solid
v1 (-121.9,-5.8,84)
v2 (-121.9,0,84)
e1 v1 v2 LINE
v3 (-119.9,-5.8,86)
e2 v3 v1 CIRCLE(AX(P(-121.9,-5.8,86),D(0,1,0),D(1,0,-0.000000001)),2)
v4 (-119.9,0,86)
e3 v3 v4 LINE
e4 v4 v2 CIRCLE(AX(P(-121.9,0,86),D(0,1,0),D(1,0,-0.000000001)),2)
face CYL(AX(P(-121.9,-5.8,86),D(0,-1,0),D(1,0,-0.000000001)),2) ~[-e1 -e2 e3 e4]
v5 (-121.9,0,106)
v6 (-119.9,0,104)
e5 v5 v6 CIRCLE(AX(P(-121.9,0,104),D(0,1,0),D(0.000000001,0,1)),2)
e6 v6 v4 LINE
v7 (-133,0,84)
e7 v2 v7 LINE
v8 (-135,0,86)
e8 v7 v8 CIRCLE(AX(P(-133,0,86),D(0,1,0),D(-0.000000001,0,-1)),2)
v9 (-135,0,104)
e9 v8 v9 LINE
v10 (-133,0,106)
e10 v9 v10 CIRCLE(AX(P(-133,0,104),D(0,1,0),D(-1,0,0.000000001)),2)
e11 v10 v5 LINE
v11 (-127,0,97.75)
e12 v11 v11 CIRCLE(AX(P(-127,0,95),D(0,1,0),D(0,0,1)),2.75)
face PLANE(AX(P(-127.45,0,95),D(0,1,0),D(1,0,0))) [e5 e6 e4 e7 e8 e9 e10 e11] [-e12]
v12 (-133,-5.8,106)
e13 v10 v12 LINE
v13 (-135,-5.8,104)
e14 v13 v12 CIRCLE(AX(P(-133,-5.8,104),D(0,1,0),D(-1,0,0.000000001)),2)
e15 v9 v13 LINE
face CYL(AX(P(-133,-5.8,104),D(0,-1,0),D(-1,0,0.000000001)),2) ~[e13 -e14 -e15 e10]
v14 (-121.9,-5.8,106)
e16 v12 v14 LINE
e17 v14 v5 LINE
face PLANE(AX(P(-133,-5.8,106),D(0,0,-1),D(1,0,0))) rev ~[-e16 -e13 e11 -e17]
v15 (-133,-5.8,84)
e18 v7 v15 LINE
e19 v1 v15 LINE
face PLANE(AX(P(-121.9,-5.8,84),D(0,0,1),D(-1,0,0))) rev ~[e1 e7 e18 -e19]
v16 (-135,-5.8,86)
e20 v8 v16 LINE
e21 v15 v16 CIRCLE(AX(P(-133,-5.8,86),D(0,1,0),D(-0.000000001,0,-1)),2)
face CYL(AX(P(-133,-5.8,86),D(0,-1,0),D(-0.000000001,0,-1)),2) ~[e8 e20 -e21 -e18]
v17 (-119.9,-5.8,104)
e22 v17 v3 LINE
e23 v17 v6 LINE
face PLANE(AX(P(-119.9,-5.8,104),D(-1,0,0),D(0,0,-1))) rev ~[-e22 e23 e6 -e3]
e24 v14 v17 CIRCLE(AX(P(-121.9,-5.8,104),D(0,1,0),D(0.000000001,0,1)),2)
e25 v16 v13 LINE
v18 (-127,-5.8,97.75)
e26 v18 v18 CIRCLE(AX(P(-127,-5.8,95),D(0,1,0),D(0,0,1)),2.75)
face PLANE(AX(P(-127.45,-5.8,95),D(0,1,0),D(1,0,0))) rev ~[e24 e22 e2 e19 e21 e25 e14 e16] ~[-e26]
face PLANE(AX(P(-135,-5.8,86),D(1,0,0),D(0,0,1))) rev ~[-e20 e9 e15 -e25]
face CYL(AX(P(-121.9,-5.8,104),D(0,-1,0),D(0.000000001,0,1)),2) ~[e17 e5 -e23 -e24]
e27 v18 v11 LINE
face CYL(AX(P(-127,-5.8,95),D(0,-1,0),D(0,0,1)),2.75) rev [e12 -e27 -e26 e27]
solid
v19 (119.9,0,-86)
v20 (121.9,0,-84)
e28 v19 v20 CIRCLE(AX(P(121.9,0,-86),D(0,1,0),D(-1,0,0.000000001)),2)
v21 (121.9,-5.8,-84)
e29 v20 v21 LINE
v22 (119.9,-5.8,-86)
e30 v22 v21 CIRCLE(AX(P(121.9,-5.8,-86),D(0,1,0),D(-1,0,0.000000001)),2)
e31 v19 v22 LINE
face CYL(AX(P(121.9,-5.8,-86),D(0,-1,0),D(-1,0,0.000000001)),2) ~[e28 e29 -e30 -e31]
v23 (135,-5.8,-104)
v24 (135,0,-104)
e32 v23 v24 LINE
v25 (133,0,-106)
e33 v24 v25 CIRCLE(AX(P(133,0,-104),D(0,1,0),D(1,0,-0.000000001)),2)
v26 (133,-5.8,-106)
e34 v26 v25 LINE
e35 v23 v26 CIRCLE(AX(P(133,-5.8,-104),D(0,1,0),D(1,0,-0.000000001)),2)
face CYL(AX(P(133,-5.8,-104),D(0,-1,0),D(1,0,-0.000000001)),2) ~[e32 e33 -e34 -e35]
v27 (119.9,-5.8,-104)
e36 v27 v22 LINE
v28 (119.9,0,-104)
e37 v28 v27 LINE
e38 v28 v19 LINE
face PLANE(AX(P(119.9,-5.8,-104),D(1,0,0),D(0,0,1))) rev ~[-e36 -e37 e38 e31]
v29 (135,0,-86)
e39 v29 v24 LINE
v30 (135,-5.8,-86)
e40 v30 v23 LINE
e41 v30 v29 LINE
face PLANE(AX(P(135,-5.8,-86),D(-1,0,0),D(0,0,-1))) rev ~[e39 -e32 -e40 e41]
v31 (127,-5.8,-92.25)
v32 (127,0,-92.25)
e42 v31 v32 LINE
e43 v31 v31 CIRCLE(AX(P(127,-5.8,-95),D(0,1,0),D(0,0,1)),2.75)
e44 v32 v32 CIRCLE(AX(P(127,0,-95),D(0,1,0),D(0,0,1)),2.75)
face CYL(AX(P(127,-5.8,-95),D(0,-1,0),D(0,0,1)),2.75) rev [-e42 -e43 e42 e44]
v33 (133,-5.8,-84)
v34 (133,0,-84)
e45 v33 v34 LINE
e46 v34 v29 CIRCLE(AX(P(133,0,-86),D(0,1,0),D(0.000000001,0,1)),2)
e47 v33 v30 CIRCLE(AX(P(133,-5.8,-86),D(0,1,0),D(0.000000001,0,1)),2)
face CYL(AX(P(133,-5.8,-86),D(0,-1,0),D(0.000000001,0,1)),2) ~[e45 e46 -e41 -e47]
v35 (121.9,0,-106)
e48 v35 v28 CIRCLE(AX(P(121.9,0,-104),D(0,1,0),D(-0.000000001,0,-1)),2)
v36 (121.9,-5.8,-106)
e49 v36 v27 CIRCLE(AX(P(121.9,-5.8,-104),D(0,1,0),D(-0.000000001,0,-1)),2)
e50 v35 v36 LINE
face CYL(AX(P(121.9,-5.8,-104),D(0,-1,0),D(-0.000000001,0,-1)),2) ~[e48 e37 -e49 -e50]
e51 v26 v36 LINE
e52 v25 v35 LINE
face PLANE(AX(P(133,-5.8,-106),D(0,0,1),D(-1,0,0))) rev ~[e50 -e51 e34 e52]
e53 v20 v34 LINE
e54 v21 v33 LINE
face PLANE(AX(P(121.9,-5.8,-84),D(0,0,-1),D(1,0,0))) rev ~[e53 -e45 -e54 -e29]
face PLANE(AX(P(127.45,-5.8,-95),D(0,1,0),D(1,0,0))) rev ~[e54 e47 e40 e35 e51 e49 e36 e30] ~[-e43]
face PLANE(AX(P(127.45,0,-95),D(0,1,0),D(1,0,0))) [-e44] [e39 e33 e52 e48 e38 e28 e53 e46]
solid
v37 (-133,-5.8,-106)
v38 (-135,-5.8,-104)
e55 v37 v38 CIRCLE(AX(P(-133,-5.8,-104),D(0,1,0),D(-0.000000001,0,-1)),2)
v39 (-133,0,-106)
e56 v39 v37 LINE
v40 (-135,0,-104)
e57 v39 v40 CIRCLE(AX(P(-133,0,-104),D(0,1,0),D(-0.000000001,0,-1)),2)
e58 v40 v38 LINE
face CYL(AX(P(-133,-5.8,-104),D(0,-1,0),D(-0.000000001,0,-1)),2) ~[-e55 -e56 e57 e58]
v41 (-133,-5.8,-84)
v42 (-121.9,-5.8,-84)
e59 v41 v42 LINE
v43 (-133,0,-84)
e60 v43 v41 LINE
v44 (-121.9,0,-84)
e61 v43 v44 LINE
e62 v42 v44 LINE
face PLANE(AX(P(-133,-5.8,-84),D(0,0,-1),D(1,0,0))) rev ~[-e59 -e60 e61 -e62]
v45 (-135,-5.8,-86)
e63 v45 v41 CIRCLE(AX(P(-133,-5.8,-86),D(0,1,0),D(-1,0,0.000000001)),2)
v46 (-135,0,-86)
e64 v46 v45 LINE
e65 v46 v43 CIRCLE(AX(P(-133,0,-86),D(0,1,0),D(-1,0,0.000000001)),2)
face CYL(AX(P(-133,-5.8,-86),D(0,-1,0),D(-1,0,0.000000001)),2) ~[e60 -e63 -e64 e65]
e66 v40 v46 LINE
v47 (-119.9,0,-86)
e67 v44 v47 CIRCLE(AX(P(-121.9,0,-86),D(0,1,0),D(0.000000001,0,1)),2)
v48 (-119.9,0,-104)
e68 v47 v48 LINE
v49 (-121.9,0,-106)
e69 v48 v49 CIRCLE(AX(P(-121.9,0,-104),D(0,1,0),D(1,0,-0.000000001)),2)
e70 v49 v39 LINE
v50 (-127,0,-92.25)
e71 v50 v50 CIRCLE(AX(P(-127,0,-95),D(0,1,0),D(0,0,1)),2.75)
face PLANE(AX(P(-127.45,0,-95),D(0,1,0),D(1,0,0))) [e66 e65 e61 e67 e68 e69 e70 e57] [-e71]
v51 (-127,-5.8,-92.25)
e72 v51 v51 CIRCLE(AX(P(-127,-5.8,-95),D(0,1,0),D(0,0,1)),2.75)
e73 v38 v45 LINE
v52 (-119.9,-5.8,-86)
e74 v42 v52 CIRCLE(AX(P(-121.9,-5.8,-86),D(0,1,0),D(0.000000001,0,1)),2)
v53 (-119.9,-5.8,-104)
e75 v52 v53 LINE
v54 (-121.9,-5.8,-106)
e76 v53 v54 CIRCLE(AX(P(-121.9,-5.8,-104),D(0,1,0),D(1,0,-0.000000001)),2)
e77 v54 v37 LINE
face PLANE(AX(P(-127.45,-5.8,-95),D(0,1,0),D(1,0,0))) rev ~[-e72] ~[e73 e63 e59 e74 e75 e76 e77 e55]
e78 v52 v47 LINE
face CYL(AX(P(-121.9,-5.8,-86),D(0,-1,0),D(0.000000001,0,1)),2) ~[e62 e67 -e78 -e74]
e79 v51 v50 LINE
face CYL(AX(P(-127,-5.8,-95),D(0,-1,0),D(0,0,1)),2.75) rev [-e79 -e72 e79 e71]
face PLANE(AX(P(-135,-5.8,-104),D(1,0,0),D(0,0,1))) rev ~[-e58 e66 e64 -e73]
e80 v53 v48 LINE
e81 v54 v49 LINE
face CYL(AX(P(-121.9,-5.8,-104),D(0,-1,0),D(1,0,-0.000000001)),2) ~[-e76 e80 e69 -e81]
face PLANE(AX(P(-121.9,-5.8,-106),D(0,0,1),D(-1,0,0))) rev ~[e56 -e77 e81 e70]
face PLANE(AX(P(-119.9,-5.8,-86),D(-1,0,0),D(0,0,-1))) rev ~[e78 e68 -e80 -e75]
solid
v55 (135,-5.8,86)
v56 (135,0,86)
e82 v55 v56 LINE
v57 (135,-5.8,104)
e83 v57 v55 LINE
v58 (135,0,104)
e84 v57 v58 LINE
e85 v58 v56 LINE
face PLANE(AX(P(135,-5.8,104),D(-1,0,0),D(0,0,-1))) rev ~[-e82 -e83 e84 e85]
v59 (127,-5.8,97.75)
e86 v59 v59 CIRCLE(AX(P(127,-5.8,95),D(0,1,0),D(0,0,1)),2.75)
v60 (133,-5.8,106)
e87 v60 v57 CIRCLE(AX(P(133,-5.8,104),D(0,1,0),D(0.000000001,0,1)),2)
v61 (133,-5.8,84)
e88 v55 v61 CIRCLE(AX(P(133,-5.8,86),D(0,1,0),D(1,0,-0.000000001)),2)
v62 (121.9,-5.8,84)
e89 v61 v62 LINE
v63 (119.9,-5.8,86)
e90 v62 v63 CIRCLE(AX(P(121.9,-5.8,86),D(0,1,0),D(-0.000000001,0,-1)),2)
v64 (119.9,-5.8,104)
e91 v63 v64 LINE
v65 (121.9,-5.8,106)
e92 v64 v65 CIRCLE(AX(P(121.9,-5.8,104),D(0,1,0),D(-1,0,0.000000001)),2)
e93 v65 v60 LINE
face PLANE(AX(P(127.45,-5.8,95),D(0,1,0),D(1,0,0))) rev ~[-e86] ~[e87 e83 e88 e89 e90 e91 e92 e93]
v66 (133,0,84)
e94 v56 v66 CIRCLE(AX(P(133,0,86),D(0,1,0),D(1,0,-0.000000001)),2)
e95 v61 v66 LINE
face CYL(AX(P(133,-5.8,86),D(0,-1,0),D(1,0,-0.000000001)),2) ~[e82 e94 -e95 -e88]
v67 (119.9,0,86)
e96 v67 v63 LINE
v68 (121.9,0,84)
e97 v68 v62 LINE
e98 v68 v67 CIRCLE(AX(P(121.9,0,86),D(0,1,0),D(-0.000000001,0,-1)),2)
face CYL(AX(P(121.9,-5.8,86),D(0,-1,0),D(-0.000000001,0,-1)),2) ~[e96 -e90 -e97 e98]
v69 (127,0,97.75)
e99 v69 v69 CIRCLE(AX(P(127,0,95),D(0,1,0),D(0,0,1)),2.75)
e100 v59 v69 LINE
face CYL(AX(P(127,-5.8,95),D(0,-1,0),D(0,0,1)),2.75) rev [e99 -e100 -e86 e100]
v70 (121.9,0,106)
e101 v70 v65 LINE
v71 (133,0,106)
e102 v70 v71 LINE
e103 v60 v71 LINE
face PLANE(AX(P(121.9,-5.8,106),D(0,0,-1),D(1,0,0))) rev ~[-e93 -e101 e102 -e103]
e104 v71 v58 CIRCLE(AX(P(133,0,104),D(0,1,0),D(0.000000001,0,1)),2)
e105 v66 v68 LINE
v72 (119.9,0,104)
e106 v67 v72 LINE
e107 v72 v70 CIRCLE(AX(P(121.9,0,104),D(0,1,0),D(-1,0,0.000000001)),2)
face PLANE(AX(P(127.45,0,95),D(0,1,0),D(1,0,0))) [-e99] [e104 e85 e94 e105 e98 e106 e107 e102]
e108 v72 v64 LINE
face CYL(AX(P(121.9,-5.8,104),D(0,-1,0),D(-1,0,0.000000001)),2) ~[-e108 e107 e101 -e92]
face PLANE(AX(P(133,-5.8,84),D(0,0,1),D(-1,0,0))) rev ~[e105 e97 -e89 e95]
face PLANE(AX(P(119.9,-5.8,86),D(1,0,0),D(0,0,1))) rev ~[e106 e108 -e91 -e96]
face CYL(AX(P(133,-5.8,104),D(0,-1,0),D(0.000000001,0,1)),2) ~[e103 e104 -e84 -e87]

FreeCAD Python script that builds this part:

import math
import FreeCAD as App
import Part
import Sketcher

doc = App.newDocument("Part")
params = doc.addObject("Spreadsheet::Sheet", "Params")
for row, (alias, value) in enumerate([
    ("sketch1_radius", "2 mm"),
    ("sketch1_diameter", "5.5 mm"),
    ("sketch1_height", "18 mm"),
    ("sketch1_width", "11.1 mm"),
    ("pad1_length", "2.9 mm"),
    ("sketch2_radius", "2 mm"),
    ("sketch2_diameter", "5.5 mm"),
    ("sketch2_height", "18 mm"),
    ("sketch2_width", "11.1 mm"),
    ("pad2_length", "2.9 mm"),
    ("sketch3_radius", "2 mm"),
    ("sketch3_diameter", "5.5 mm"),
    ("sketch3_height", "18 mm"),
    ("sketch3_width", "11.1 mm"),
    ("pad3_length", "2.9 mm"),
    ("sketch4_radius", "2 mm"),
    ("sketch4_diameter", "5.5 mm"),
    ("sketch4_height", "18 mm"),
    ("sketch4_width", "11.1 mm"),
    ("pad4_length", "2.9 mm"),
    ("sketch5_radius", "2 mm"),
    ("sketch5_diameter", "5.5 mm"),
    ("sketch5_height", "18 mm"),
    ("sketch5_width", "11.1 mm"),
    ("pad5_length", "2.9 mm"),
], start=1):
    params.set(f"A{row}", alias)
    params.set(f"B{row}", "=" + value)
    params.setAlias(f"B{row}", alias)

body = doc.addObject("PartDesign::Body", "Body")

sketch1 = doc.addObject("Sketcher::SketchObject", "Sketch")
body.addObject(sketch1)
sketch1.AttachmentSupport = (doc.XZ_Plane, [""])
sketch1.MapMode = "FlatFace"
sketch1.AttachmentOffset = App.Placement(App.Vector(0, 0, 2.9), App.Rotation())
sketch1.addGeometry([
    Part.LineSegment(App.Vector(121.9, 106, 0), App.Vector(133, 106, 0)),
    Part.ArcOfCircle(Part.Circle(App.Vector(133, 104, 0), App.Vector(0, 0, 1), 2), math.radians(0), math.radians(90)),
    Part.LineSegment(App.Vector(135, 104, 0), App.Vector(135, 86, 0)),
    Part.ArcOfCircle(Part.Circle(App.Vector(133, 86, 0), App.Vector(0, 0, 1), 2), math.radians(-90), math.radians(0)),
    Part.LineSegment(App.Vector(133, 84, 0), App.Vector(121.9, 84, 0)),
    Part.ArcOfCircle(Part.Circle(App.Vector(121.9, 86, 0), App.Vector(0, 0, 1), 2), math.radians(-180), math.radians(-90)),
    Part.LineSegment(App.Vector(119.9, 86, 0), App.Vector(119.9, 104, 0)),
    Part.ArcOfCircle(Part.Circle(App.Vector(121.9, 104, 0), App.Vector(0, 0, 1), 2), math.radians(90), math.radians(180)),
    Part.Circle(App.Vector(127, 95, 0), App.Vector(0, 0, 1), 2.8),
], False)
sketch1.addConstraint([
    Sketcher.Constraint("Tangent", 0, 2, 1, 2),
    Sketcher.Constraint("Tangent", 1, 1, 2, 1),
    Sketcher.Constraint("Tangent", 2, 2, 3, 2),
    Sketcher.Constraint("Tangent", 3, 1, 4, 1),
    Sketcher.Constraint("Tangent", 4, 2, 5, 2),
    Sketcher.Constraint("Tangent", 5, 1, 6, 1),
    Sketcher.Constraint("Tangent", 6, 2, 7, 2),
    Sketcher.Constraint("Tangent", 7, 1, 0, 1),
    Sketcher.Constraint("Horizontal", 0),
    Sketcher.Constraint("Vertical", 2),
    Sketcher.Constraint("Horizontal", 4),
    Sketcher.Constraint("Vertical", 6),
    Sketcher.Constraint("Equal", 1, 3),
    Sketcher.Constraint("Equal", 3, 5),
    Sketcher.Constraint("Equal", 5, 7),
    Sketcher.Constraint("Radius", 1, 2.0),
    Sketcher.Constraint("Diameter", 8, 5.5),
    Sketcher.Constraint("DistanceY", 2, 2, 2, 1, 18.0),
    Sketcher.Constraint("DistanceX", 0, 1, 0, 2, 11.1),
    Sketcher.Constraint("DistanceX", -1, 1, 1, 3, 133.0),
    Sketcher.Constraint("DistanceY", -1, 1, 1, 3, 104.0),
    Sketcher.Constraint("DistanceX", -1, 1, 8, 3, 127.0),
    Sketcher.Constraint("DistanceY", -1, 1, 8, 3, 95.0),
])
sketch1.setExpression("Constraints[15]", "Params.sketch1_radius")
sketch1.setExpression("Constraints[16]", "Params.sketch1_diameter")
sketch1.setExpression("Constraints[17]", "Params.sketch1_height")
sketch1.setExpression("Constraints[18]", "Params.sketch1_width")
pad1 = doc.addObject("PartDesign::Pad", "Pad")
body.addObject(pad1)
pad1.Profile = sketch1
pad1.setExpression("Length", "Params.pad1_length")
pad1.Reversed = True
body2 = doc.addObject("PartDesign::Body", "Body001")

sketch2 = doc.addObject("Sketcher::SketchObject", "Sketch001")
body2.addObject(sketch2)
sketch2.AttachmentSupport = (doc.getObject("XZ_Plane001"), [""])
sketch2.MapMode = "FlatFace"
sketch2.AttachmentOffset = App.Placement(App.Vector(0, 0, 2.9), App.Rotation())
sketch2.addGeometry([
    Part.LineSegment(App.Vector(121.9, -84, 0), App.Vector(133, -84, 0)),
    Part.ArcOfCircle(Part.Circle(App.Vector(133, -86, 0), App.Vector(0, 0, 1), 2), math.radians(0), math.radians(90)),
    Part.LineSegment(App.Vector(135, -86, 0), App.Vector(135, -104, 0)),
    Part.ArcOfCircle(Part.Circle(App.Vector(133, -104, 0), App.Vector(0, 0, 1), 2), math.radians(-90), math.radians(0)),
    Part.LineSegment(App.Vector(133, -106, 0), App.Vector(121.9, -106, 0)),
    Part.ArcOfCircle(Part.Circle(App.Vector(121.9, -104, 0), App.Vector(0, 0, 1), 2), math.radians(-180), math.radians(-90)),
    Part.LineSegment(App.Vector(119.9, -104, 0), App.Vector(119.9, -86, 0)),
    Part.ArcOfCircle(Part.Circle(App.Vector(121.9, -86, 0), App.Vector(0, 0, 1), 2), math.radians(90), math.radians(180)),
    Part.Circle(App.Vector(127, -95, 0), App.Vector(0, 0, 1), 2.8),
], False)
sketch2.addConstraint([
    Sketcher.Constraint("Tangent", 0, 2, 1, 2),
    Sketcher.Constraint("Tangent", 1, 1, 2, 1),
    Sketcher.Constraint("Tangent", 2, 2, 3, 2),
    Sketcher.Constraint("Tangent", 3, 1, 4, 1),
    Sketcher.Constraint("Tangent", 4, 2, 5, 2),
    Sketcher.Constraint("Tangent", 5, 1, 6, 1),
    Sketcher.Constraint("Tangent", 6, 2, 7, 2),
    Sketcher.Constraint("Tangent", 7, 1, 0, 1),
    Sketcher.Constraint("Horizontal", 0),
    Sketcher.Constraint("Vertical", 2),
    Sketcher.Constraint("Horizontal", 4),
    Sketcher.Constraint("Vertical", 6),
    Sketcher.Constraint("Equal", 1, 3),
    Sketcher.Constraint("Equal", 3, 5),
    Sketcher.Constraint("Equal", 5, 7),
    Sketcher.Constraint("Radius", 1, 2.0),
    Sketcher.Constraint("Diameter", 8, 5.5),
    Sketcher.Constraint("DistanceY", 2, 2, 2, 1, 18.0),
    Sketcher.Constraint("DistanceX", 0, 1, 0, 2, 11.1),
    Sketcher.Constraint("DistanceX", -1, 1, 1, 3, 133.0),
    Sketcher.Constraint("DistanceY", 1, 3, -1, 1, 86.0),
    Sketcher.Constraint("DistanceX", -1, 1, 8, 3, 127.0),
    Sketcher.Constraint("DistanceY", 8, 3, -1, 1, 95.0),
])
sketch2.setExpression("Constraints[15]", "Params.sketch2_radius")
sketch2.setExpression("Constraints[16]", "Params.sketch2_diameter")
sketch2.setExpression("Constraints[17]", "Params.sketch2_height")
sketch2.setExpression("Constraints[18]", "Params.sketch2_width")
pad2 = doc.addObject("PartDesign::Pad", "Pad001")
body2.addObject(pad2)
pad2.Profile = sketch2
pad2.setExpression("Length", "Params.pad2_length")
pad2.Reversed = True
body3 = doc.addObject("PartDesign::Body", "Body002")

sketch3 = doc.addObject("Sketcher::SketchObject", "Sketch002")
body3.addObject(sketch3)
sketch3.AttachmentSupport = (doc.getObject("XZ_Plane002"), [""])
sketch3.MapMode = "FlatFace"
sketch3.AttachmentOffset = App.Placement(App.Vector(0, 0, 2.9), App.Rotation())
sketch3.addGeometry([
    Part.LineSegment(App.Vector(-133, 106, 0), App.Vector(-121.9, 106, 0)),
    Part.ArcOfCircle(Part.Circle(App.Vector(-121.9, 104, 0), App.Vector(0, 0, 1), 2), math.radians(0), math.radians(90)),
    Part.LineSegment(App.Vector(-119.9, 104, 0), App.Vector(-119.9, 86, 0)),
    Part.ArcOfCircle(Part.Circle(App.Vector(-121.9, 86, 0), App.Vector(0, 0, 1), 2), math.radians(-90), math.radians(0)),
    Part.LineSegment(App.Vector(-121.9, 84, 0), App.Vector(-133, 84, 0)),
    Part.ArcOfCircle(Part.Circle(App.Vector(-133, 86, 0), App.Vector(0, 0, 1), 2), math.radians(-180), math.radians(-90)),
    Part.LineSegment(App.Vector(-135, 86, 0), App.Vector(-135, 104, 0)),
    Part.ArcOfCircle(Part.Circle(App.Vector(-133, 104, 0), App.Vector(0, 0, 1), 2), math.radians(90), math.radians(180)),
    Part.Circle(App.Vector(-127, 95, 0), App.Vector(0, 0, 1), 2.8),
], False)
sketch3.addConstraint([
    Sketcher.Constraint("Tangent", 0, 2, 1, 2),
    Sketcher.Constraint("Tangent", 1, 1, 2, 1),
    Sketcher.Constraint("Tangent", 2, 2, 3, 2),
    Sketcher.Constraint("Tangent", 3, 1, 4, 1),
    Sketcher.Constraint("Tangent", 4, 2, 5, 2),
    Sketcher.Constraint("Tangent", 5, 1, 6, 1),
    Sketcher.Constraint("Tangent", 6, 2, 7, 2),
    Sketcher.Constraint("Tangent", 7, 1, 0, 1),
    Sketcher.Constraint("Horizontal", 0),
    Sketcher.Constraint("Vertical", 2),
    Sketcher.Constraint("Horizontal", 4),
    Sketcher.Constraint("Vertical", 6),
    Sketcher.Constraint("Equal", 1, 3),
    Sketcher.Constraint("Equal", 3, 5),
    Sketcher.Constraint("Equal", 5, 7),
    Sketcher.Constraint("Radius", 1, 2.0),
    Sketcher.Constraint("Diameter", 8, 5.5),
    Sketcher.Constraint("DistanceY", 2, 2, 2, 1, 18.0),
    Sketcher.Constraint("DistanceX", 0, 1, 0, 2, 11.1),
    Sketcher.Constraint("DistanceY", -1, 1, 1, 3, 104.0),
    Sketcher.Constraint("DistanceX", 5, 3, -1, 1, 133.0),
    Sketcher.Constraint("DistanceX", 8, 3, -1, 1, 127.0),
    Sketcher.Constraint("DistanceY", -1, 1, 8, 3, 95.0),
])
sketch3.setExpression("Constraints[15]", "Params.sketch3_radius")
sketch3.setExpression("Constraints[16]", "Params.sketch3_diameter")
sketch3.setExpression("Constraints[17]", "Params.sketch3_height")
sketch3.setExpression("Constraints[18]", "Params.sketch3_width")
pad3 = doc.addObject("PartDesign::Pad", "Pad002")
body3.addObject(pad3)
pad3.Profile = sketch3
pad3.setExpression("Length", "Params.pad3_length")
pad3.Reversed = True
body4 = doc.addObject("PartDesign::Body", "Body003")

sketch4 = doc.addObject("Sketcher::SketchObject", "Sketch003")
body4.addObject(sketch4)
sketch4.AttachmentSupport = (doc.getObject("XZ_Plane003"), [""])
sketch4.MapMode = "FlatFace"
sketch4.AttachmentOffset = App.Placement(App.Vector(0, 0, 2.9), App.Rotation())
sketch4.addGeometry([
    Part.LineSegment(App.Vector(-133, -84, 0), App.Vector(-121.9, -84, 0)),
    Part.ArcOfCircle(Part.Circle(App.Vector(-121.9, -86, 0), App.Vector(0, 0, 1), 2), math.radians(0), math.radians(90)),
    Part.LineSegment(App.Vector(-119.9, -86, 0), App.Vector(-119.9, -104, 0)),
    Part.ArcOfCircle(Part.Circle(App.Vector(-121.9, -104, 0), App.Vector(0, 0, 1), 2), math.radians(-90), math.radians(0)),
    Part.LineSegment(App.Vector(-121.9, -106, 0), App.Vector(-133, -106, 0)),
    Part.ArcOfCircle(Part.Circle(App.Vector(-133, -104, 0), App.Vector(0, 0, 1), 2), math.radians(-180), math.radians(-90)),
    Part.LineSegment(App.Vector(-135, -104, 0), App.Vector(-135, -86, 0)),
    Part.ArcOfCircle(Part.Circle(App.Vector(-133, -86, 0), App.Vector(0, 0, 1), 2), math.radians(90), math.radians(180)),
    Part.Circle(App.Vector(-127, -95, 0), App.Vector(0, 0, 1), 2.8),
], False)
sketch4.addConstraint([
    Sketcher.Constraint("Tangent", 0, 2, 1, 2),
    Sketcher.Constraint("Tangent", 1, 1, 2, 1),
    Sketcher.Constraint("Tangent", 2, 2, 3, 2),
    Sketcher.Constraint("Tangent", 3, 1, 4, 1),
    Sketcher.Constraint("Tangent", 4, 2, 5, 2),
    Sketcher.Constraint("Tangent", 5, 1, 6, 1),
    Sketcher.Constraint("Tangent", 6, 2, 7, 2),
    Sketcher.Constraint("Tangent", 7, 1, 0, 1),
    Sketcher.Constraint("Horizontal", 0),
    Sketcher.Constraint("Vertical", 2),
    Sketcher.Constraint("Horizontal", 4),
    Sketcher.Constraint("Vertical", 6),
    Sketcher.Constraint("Equal", 1, 3),
    Sketcher.Constraint("Equal", 3, 5),
    Sketcher.Constraint("Equal", 5, 7),
    Sketcher.Constraint("Radius", 1, 2.0),
    Sketcher.Constraint("Diameter", 8, 5.5),
    Sketcher.Constraint("DistanceY", 2, 2, 2, 1, 18.0),
    Sketcher.Constraint("DistanceX", 0, 1, 0, 2, 11.1),
    Sketcher.Constraint("DistanceY", 1, 3, -1, 1, 86.0),
    Sketcher.Constraint("DistanceX", 5, 3, -1, 1, 133.0),
    Sketcher.Constraint("DistanceX", 8, 3, -1, 1, 127.0),
    Sketcher.Constraint("DistanceY", 8, 3, -1, 1, 95.0),
])
sketch4.setExpression("Constraints[15]", "Params.sketch4_radius")
sketch4.setExpression("Constraints[16]", "Params.sketch4_diameter")
sketch4.setExpression("Constraints[17]", "Params.sketch4_height")
sketch4.setExpression("Constraints[18]", "Params.sketch4_width")
pad4 = doc.addObject("PartDesign::Pad", "Pad003")
body4.addObject(pad4)
pad4.Profile = sketch4
pad4.setExpression("Length", "Params.pad4_length")
pad4.Reversed = True
body.AllowCompound = True
doc.recompute()

boolean = doc.addObject("PartDesign::Boolean", "Boolean")
body.addObject(boolean)
boolean.Type = "Fuse"
boolean.addObjects([body2])
doc.recompute()

boolean2 = doc.addObject("PartDesign::Boolean", "Boolean001")
body.addObject(boolean2)
boolean2.Type = "Fuse"
boolean2.addObjects([body3])
doc.recompute()

boolean3 = doc.addObject("PartDesign::Boolean", "Boolean002")
body.addObject(boolean3)
boolean3.Type = "Fuse"
boolean3.addObjects([body4])

sketch5 = doc.addObject("Sketcher::SketchObject", "Sketch004")
body.addObject(sketch5)
sketch5.AttachmentSupport = (doc.XZ_Plane, [""])
sketch5.MapMode = "FlatFace"
sketch5.AttachmentOffset = App.Placement(App.Vector(0, 0, 5.8), App.Rotation())
sketch5.addGeometry([
    Part.LineSegment(App.Vector(121.9, 106, 0), App.Vector(133, 106, 0)),
    Part.ArcOfCircle(Part.Circle(App.Vector(133, 104, 0), App.Vector(0, 0, 1), 2), math.radians(0), math.radians(90)),
    Part.LineSegment(App.Vector(135, 104, 0), App.Vector(135, 86, 0)),
    Part.ArcOfCircle(Part.Circle(App.Vector(133, 86, 0), App.Vector(0, 0, 1), 2), math.radians(-90), math.radians(0)),
    Part.LineSegment(App.Vector(133, 84, 0), App.Vector(121.9, 84, 0)),
    Part.ArcOfCircle(Part.Circle(App.Vector(121.9, 86, 0), App.Vector(0, 0, 1), 2), math.radians(-180), math.radians(-90)),
    Part.LineSegment(App.Vector(119.9, 86, 0), App.Vector(119.9, 104, 0)),
    Part.ArcOfCircle(Part.Circle(App.Vector(121.9, 104, 0), App.Vector(0, 0, 1), 2), math.radians(90), math.radians(180)),
    Part.Circle(App.Vector(127, 95, 0), App.Vector(0, 0, 1), 2.8),
    Part.LineSegment(App.Vector(121.9, -84, 0), App.Vector(133, -84, 0)),
    Part.ArcOfCircle(Part.Circle(App.Vector(133, -86, 0), App.Vector(0, 0, 1), 2), math.radians(0), math.radians(90)),
    Part.LineSegment(App.Vector(135, -86, 0), App.Vector(135, -104, 0)),
    Part.ArcOfCircle(Part.Circle(App.Vector(133, -104, 0), App.Vector(0, 0, 1), 2), math.radians(-90), math.radians(0)),
    Part.LineSegment(App.Vector(133, -106, 0), App.Vector(121.9, -106, 0)),
    Part.ArcOfCircle(Part.Circle(App.Vector(121.9, -104, 0), App.Vector(0, 0, 1), 2), math.radians(-180), math.radians(-90)),
    Part.LineSegment(App.Vector(119.9, -104, 0), App.Vector(119.9, -86, 0)),
    Part.ArcOfCircle(Part.Circle(App.Vector(121.9, -86, 0), App.Vector(0, 0, 1), 2), math.radians(90), math.radians(180)),
    Part.Circle(App.Vector(127, -95, 0), App.Vector(0, 0, 1), 2.8),
    Part.LineSegment(App.Vector(-133, 106, 0), App.Vector(-121.9, 106, 0)),
    Part.ArcOfCircle(Part.Circle(App.Vector(-121.9, 104, 0), App.Vector(0, 0, 1), 2), math.radians(0), math.radians(90)),
    Part.LineSegment(App.Vector(-119.9, 104, 0), App.Vector(-119.9, 86, 0)),
    Part.ArcOfCircle(Part.Circle(App.Vector(-121.9, 86, 0), App.Vector(0, 0, 1), 2), math.radians(-90), math.radians(0)),
    Part.LineSegment(App.Vector(-121.9, 84, 0), App.Vector(-133, 84, 0)),
    Part.ArcOfCircle(Part.Circle(App.Vector(-133, 86, 0), App.Vector(0, 0, 1), 2), math.radians(-180), math.radians(-90)),
    Part.LineSegment(App.Vector(-135, 86, 0), App.Vector(-135, 104, 0)),
    Part.ArcOfCircle(Part.Circle(App.Vector(-133, 104, 0), App.Vector(0, 0, 1), 2), math.radians(90), math.radians(180)),
    Part.Circle(App.Vector(-127, 95, 0), App.Vector(0, 0, 1), 2.8),
    Part.LineSegment(App.Vector(-133, -84, 0), App.Vector(-121.9, -84, 0)),
    Part.ArcOfCircle(Part.Circle(App.Vector(-121.9, -86, 0), App.Vector(0, 0, 1), 2), math.radians(0), math.radians(90)),
    Part.LineSegment(App.Vector(-119.9, -86, 0), App.Vector(-119.9, -104, 0)),
    Part.ArcOfCircle(Part.Circle(App.Vector(-121.9, -104, 0), App.Vector(0, 0, 1), 2), math.radians(-90), math.radians(0)),
    Part.LineSegment(App.Vector(-121.9, -106, 0), App.Vector(-133, -106, 0)),
    Part.ArcOfCircle(Part.Circle(App.Vector(-133, -104, 0), App.Vector(0, 0, 1), 2), math.radians(-180), math.radians(-90)),
    Part.LineSegment(App.Vector(-135, -104, 0), App.Vector(-135, -86, 0)),
    Part.ArcOfCircle(Part.Circle(App.Vector(-133, -86, 0), App.Vector(0, 0, 1), 2), math.radians(90), math.radians(180)),
    Part.Circle(App.Vector(-127, -95, 0), App.Vector(0, 0, 1), 2.8),
], False)
sketch5.addConstraint([
    Sketcher.Constraint("Tangent", 0, 2, 1, 2),
    Sketcher.Constraint("Tangent", 1, 1, 2, 1),
    Sketcher.Constraint("Tangent", 2, 2, 3, 2),
    Sketcher.Constraint("Tangent", 3, 1, 4, 1),
    Sketcher.Constraint("Tangent", 4, 2, 5, 2),
    Sketcher.Constraint("Tangent", 5, 1, 6, 1),
    Sketcher.Constraint("Tangent", 6, 2, 7, 2),
    Sketcher.Constraint("Tangent", 7, 1, 0, 1),
    Sketcher.Constraint("Tangent", 9, 2, 10, 2),
    Sketcher.Constraint("Tangent", 10, 1, 11, 1),
    Sketcher.Constraint("Tangent", 11, 2, 12, 2),
    Sketcher.Constraint("Tangent", 12, 1, 13, 1),
    Sketcher.Constraint("Tangent", 13, 2, 14, 2),
    Sketcher.Constraint("Tangent", 14, 1, 15, 1),
    Sketcher.Constraint("Tangent", 15, 2, 16, 2),
    Sketcher.Constraint("Tangent", 16, 1, 9, 1),
    Sketcher.Constraint("Tangent", 18, 2, 19, 2),
    Sketcher.Constraint("Tangent", 19, 1, 20, 1),
    Sketcher.Constraint("Tangent", 20, 2, 21, 2),
    Sketcher.Constraint("Tangent", 21, 1, 22, 1),
    Sketcher.Constraint("Tangent", 22, 2, 23, 2),
    Sketcher.Constraint("Tangent", 23, 1, 24, 1),
    Sketcher.Constraint("Tangent", 24, 2, 25, 2),
    Sketcher.Constraint("Tangent", 25, 1, 18, 1),
    Sketcher.Constraint("Tangent", 27, 2, 28, 2),
    Sketcher.Constraint("Tangent", 28, 1, 29, 1),
    Sketcher.Constraint("Tangent", 29, 2, 30, 2),
    Sketcher.Constraint("Tangent", 30, 1, 31, 1),
    Sketcher.Constraint("Tangent", 31, 2, 32, 2),
    Sketcher.Constraint("Tangent", 32, 1, 33, 1),
    Sketcher.Constraint("Tangent", 33, 2, 34, 2),
    Sketcher.Constraint("Tangent", 34, 1, 27, 1),
    Sketcher.Constraint("Horizontal", 0),
    Sketcher.Constraint("Vertical", 2),
    Sketcher.Constraint("Horizontal", 4),
    Sketcher.Constraint("Vertical", 6),
    Sketcher.Constraint("Horizontal", 9),
    Sketcher.Constraint("Vertical", 11),
    Sketcher.Constraint("Horizontal", 13),
    Sketcher.Constraint("Vertical", 15),
    Sketcher.Constraint("Horizontal", 18),
    Sketcher.Constraint("Vertical", 20),
    Sketcher.Constraint("Horizontal", 22),
    Sketcher.Constraint("Vertical", 24),
    Sketcher.Constraint("Horizontal", 27),
    Sketcher.Constraint("Vertical", 29),
    Sketcher.Constraint("Horizontal", 31),
    Sketcher.Constraint("Vertical", 33),
    Sketcher.Constraint("Equal", 1, 3),
    Sketcher.Constraint("Equal", 3, 5),
    Sketcher.Constraint("Equal", 5, 7),
    Sketcher.Constraint("Equal", 7, 10),
    Sketcher.Constraint("Equal", 10, 12),
    Sketcher.Constraint("Equal", 12, 14),
    Sketcher.Constraint("Equal", 14, 16),
    Sketcher.Constraint("Equal", 8, 17),
    Sketcher.Constraint("Equal", 16, 19),
    Sketcher.Constraint("Equal", 19, 21),
    Sketcher.Constraint("Equal", 21, 23),
    Sketcher.Constraint("Equal", 23, 25),
    Sketcher.Constraint("Equal", 17, 26),
    Sketcher.Constraint("Equal", 25, 28),
    Sketcher.Constraint("Equal", 28, 30),
    Sketcher.Constraint("Equal", 30, 32),
    Sketcher.Constraint("Equal", 32, 34),
    Sketcher.Constraint("Equal", 26, 35),
    Sketcher.Constraint("Symmetric", 14, 3, 19, 3, -1, 1),
    Sketcher.Constraint("Symmetric", 10, 3, 23, 3, -1, 1),
    Sketcher.Constraint("Symmetric", 17, 3, 26, 3, -1, 1),
    Sketcher.Constraint("Symmetric", 5, 3, 28, 3, -1, 1),
    Sketcher.Constraint("Symmetric", 1, 3, 32, 3, -1, 1),
    Sketcher.Constraint("Symmetric", 8, 3, 35, 3, -1, 1),
    Sketcher.Constraint("Symmetric", 7, 3, 19, 3, -2),
    Sketcher.Constraint("Symmetric", 3, 3, 23, 3, -2),
    Sketcher.Constraint("Symmetric", 8, 3, 26, 3, -2),
    Sketcher.Constraint("Radius", 1, 2.0),
    Sketcher.Constraint("Diameter", 8, 5.5),
    Sketcher.Constraint("DistanceY", 2, 2, 2, 1, 18.0),
    Sketcher.Constraint("DistanceX", 0, 1, 0, 2, 11.1),
    Sketcher.Constraint("DistanceX", -1, 1, 1, 3, 133.0),
    Sketcher.Constraint("DistanceY", -1, 1, 1, 3, 104.0),
    Sketcher.Constraint("DistanceX", -1, 1, 8, 3, 127.0),
    Sketcher.Constraint("DistanceY", -1, 1, 8, 3, 95.0),
])
sketch5.setExpression("Constraints[75]", "Params.sketch5_radius")
sketch5.setExpression("Constraints[76]", "Params.sketch5_diameter")
sketch5.setExpression("Constraints[77]", "Params.sketch5_height")
sketch5.setExpression("Constraints[78]", "Params.sketch5_width")
pad5 = doc.addObject("PartDesign::Pad", "Pad004")
body.addObject(pad5)
pad5.Profile = sketch5
pad5.setExpression("Length", "Params.pad5_length")
pad5.Reversed = True

doc.recompute()
